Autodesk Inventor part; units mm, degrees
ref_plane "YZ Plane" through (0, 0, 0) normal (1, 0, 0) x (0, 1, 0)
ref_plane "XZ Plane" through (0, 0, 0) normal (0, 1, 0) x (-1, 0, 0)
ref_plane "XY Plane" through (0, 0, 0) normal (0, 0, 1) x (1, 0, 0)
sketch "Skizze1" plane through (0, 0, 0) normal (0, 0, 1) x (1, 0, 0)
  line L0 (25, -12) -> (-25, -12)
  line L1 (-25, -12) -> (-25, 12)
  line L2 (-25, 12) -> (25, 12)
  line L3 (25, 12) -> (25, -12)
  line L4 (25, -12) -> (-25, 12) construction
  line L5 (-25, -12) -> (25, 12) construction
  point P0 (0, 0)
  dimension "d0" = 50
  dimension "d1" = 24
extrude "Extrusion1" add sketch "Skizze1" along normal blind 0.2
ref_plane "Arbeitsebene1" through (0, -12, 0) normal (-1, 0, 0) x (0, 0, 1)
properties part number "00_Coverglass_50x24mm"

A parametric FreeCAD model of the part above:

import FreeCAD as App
import Part
import Sketcher

V = App.Vector
Q = App.Units.Quantity


def add_polygon(sketch, points):
    """Adds a closed chain of lines whose ends are joined by coincident constraints."""
    first, n = sketch.GeometryCount, len(points)
    for a, b in zip(points, points[1:] + points[:1]):
        sketch.addGeometry(Part.LineSegment(App.Vector(*a, 0), App.Vector(*b, 0)), False)
    for i in range(n):
        sketch.addConstraint(Sketcher.Constraint("Coincident", first + i, 2, first + (i + 1) % n, 1))

doc = App.newDocument("Part")
body = doc.addObject("PartDesign::Body", "Body")

# Sketch on XY plane
sketch1 = body.newObject("Sketcher::SketchObject", "Sketch")
sketch1.AttachmentSupport = (doc.getObject("XY_Plane"), [""])
sketch1.MapMode = "FlatFace"
add_polygon(sketch1, [(-25, -12), (25, -12), (25, 12), (-25, 12)])  # lines 0-3
sketch1.addConstraint([
    Sketcher.Constraint("Horizontal", 0),
    Sketcher.Constraint("Vertical", 1),
    Sketcher.Constraint("Horizontal", 2),
    Sketcher.Constraint("Vertical", 3),
    Sketcher.Constraint("Symmetric", 0, 2, 2, 2, -1, 1),
    Sketcher.Constraint("DistanceX", 0, 1, 0, 2, Q("50 mm")),
    Sketcher.Constraint("DistanceY", 1, 1, 1, 2, Q("24 mm")),
])
pad1 = body.newObject("PartDesign::Pad", "Pad")
pad1.Profile = sketch1
pad1.Length = 0.2

doc.recompute()
